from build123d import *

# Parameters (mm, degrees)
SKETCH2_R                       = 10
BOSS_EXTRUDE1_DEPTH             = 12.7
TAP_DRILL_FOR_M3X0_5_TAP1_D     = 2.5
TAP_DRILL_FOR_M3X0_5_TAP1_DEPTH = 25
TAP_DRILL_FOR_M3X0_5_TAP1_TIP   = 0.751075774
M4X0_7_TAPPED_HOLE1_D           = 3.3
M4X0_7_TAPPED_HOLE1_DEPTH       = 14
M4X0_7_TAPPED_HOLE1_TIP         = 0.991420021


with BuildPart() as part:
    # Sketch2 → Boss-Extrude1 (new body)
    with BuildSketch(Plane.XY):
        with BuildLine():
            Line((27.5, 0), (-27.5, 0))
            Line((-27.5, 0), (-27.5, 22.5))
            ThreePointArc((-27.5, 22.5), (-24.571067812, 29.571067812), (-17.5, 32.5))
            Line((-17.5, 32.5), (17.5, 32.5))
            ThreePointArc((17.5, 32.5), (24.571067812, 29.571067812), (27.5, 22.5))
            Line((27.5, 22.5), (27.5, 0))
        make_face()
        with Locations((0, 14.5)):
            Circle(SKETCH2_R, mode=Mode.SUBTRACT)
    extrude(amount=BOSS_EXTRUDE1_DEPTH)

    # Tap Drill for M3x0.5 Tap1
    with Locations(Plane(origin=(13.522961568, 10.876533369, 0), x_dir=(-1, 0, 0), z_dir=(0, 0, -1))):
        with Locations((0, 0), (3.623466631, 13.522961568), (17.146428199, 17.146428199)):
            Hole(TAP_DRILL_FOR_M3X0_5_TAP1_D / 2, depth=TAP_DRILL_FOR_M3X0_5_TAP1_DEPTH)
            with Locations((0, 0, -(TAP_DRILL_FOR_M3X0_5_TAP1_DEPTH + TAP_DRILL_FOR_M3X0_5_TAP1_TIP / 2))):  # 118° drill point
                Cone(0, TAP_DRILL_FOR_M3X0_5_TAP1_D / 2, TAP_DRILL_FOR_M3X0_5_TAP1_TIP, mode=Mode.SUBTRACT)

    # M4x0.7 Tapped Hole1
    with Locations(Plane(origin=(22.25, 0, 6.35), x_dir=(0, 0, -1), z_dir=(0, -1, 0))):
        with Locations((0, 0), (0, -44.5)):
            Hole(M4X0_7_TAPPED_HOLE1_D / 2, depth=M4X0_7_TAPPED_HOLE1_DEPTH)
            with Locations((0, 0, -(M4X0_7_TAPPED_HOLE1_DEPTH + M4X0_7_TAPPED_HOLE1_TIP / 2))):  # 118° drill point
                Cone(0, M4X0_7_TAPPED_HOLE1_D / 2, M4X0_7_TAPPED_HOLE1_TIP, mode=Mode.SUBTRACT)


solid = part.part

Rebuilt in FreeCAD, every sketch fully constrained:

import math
import FreeCAD as App
import Part
import Sketcher

V = App.Vector
Q = App.Units.Quantity

doc = App.newDocument("Part")
body = doc.addObject("PartDesign::Body", "Body")

# Sketch on XY plane
sketch1 = doc.addObject("Sketcher::SketchObject", "Sketch")
body.addObject(sketch1)
sketch1.AttachmentSupport = (doc.XY_Plane, [""])
sketch1.MapMode = "FlatFace"
sketch1.addGeometry(Part.LineSegment(V(-28, 0, 0), V(28, 0, 0)), False)
sketch1.addGeometry(Part.LineSegment(V(28, 0, 0), V(28, 22, 0)), False)
sketch1.addGeometry(Part.ArcOfCircle(Part.Circle(V(18, 22, 0), V(0, 0, 1), 10), math.radians(0), math.radians(90)), False)
sketch1.addGeometry(Part.LineSegment(V(18, 32, 0), V(-18, 32, 0)), False)
sketch1.addGeometry(Part.ArcOfCircle(Part.Circle(V(-18, 22, 0), V(0, 0, 1), 10), math.radians(90), math.radians(180)), False)
sketch1.addGeometry(Part.LineSegment(V(-28, 22, 0), V(-28, 0, 0)), False)
sketch1.addGeometry(Part.Circle(V(0, 14, 0), V(0, 0, 1), 10), False)
sketch1.addConstraint(Sketcher.Constraint("Coincident", 0, 2, 1, 1))
sketch1.addConstraint(Sketcher.Constraint("Tangent", 1, 2, 2, 1))
sketch1.addConstraint(Sketcher.Constraint("Tangent", 2, 2, 3, 1))
sketch1.addConstraint(Sketcher.Constraint("Tangent", 3, 2, 4, 1))
sketch1.addConstraint(Sketcher.Constraint("Tangent", 4, 2, 5, 1))
sketch1.addConstraint(Sketcher.Constraint("Coincident", 5, 2, 0, 1))
sketch1.addConstraint(Sketcher.Constraint("Horizontal", 0))
sketch1.addConstraint(Sketcher.Constraint("Vertical", 1))
sketch1.addConstraint(Sketcher.Constraint("Horizontal", 3))
sketch1.addConstraint(Sketcher.Constraint("Vertical", 5))
sketch1.addConstraint(Sketcher.Constraint("Equal", 2, 4))
sketch1.addConstraint(Sketcher.Constraint("Equal", 4, 6))
sketch1.addConstraint(Sketcher.Constraint("Symmetric", 0, 2, 5, 2, -1, 1))
sketch1.addConstraint(Sketcher.Constraint("PointOnObject", 6, 3, -2))
sketch1.addConstraint(Sketcher.Constraint("Diameter", 6, Q("20 mm")))
sketch1.addConstraint(Sketcher.Constraint("DistanceX", 0, 1, 0, 2, Q("55 mm")))
sketch1.addConstraint(Sketcher.Constraint("DistanceY", 1, 1, 1, 2, Q("22.5 mm")))
sketch1.addConstraint(Sketcher.Constraint("DistanceY", 6, 3, 2, 3, Q("8 mm")))
pad1 = doc.addObject("PartDesign::Pad", "Pad")
body.addObject(pad1)
pad1.Profile = sketch1
pad1.Length = 12.7

# Sketch on XY plane
sketch2 = doc.addObject("Sketcher::SketchObject", "Sketch001")
body.addObject(sketch2)
sketch2.AttachmentSupport = (doc.XY_Plane, [""])
sketch2.MapMode = "FlatFace"
sketch2.addGeometry(Part.Circle(V(13.5, 10.9, 0), V(0, 0, 1), 1.2), False)
sketch2.addGeometry(Part.Circle(V(9.9, 24.4, 0), V(0, 0, 1), 1.2), False)
sketch2.addGeometry(Part.Circle(V(-3.6, 28, 0), V(0, 0, 1), 1.2), False)
sketch2.addConstraint(Sketcher.Constraint("Equal", 0, 1))
sketch2.addConstraint(Sketcher.Constraint("Equal", 1, 2))
sketch2.addConstraint(Sketcher.Constraint("Diameter", 0, Q("2.5 mm")))
sketch2.addConstraint(Sketcher.Constraint("DistanceX", -1, 1, 0, 3, Q("13.522962 mm")))
sketch2.addConstraint(Sketcher.Constraint("DistanceY", -1, 1, 2, 3, Q("28.022962 mm")))
sketch2.addConstraint(Sketcher.Constraint("DistanceY", 0, 3, 1, 3, Q("13.522962 mm")))
sketch2.addConstraint(Sketcher.Constraint("DistanceX", 2, 3, 1, 3, Q("13.522962 mm")))
sketch2.addConstraint(Sketcher.Constraint("DistanceX", 2, 3, 0, 3, Q("17.146428 mm")))
sketch2.addConstraint(Sketcher.Constraint("DistanceY", 0, 3, 2, 3, Q("17.146428 mm")))
doc.recompute()
hole = doc.addObject("PartDesign::Hole", "Hole")
body.addObject(hole)
hole.Profile = sketch2
hole.ThreadType = "None"
hole.Diameter = 2.5
hole.DepthType = "Dimension"
hole.Depth = 25
hole.DrillPoint = "Angled"
hole.DrillPointAngle = 118
hole.Reversed = True

# Sketch on XZ plane
sketch3 = doc.addObject("Sketcher::SketchObject", "Sketch002")
body.addObject(sketch3)
sketch3.AttachmentSupport = (doc.XZ_Plane, [""])
sketch3.MapMode = "FlatFace"
sketch3.addGeometry(Part.Circle(V(22.2, 6.3, 0), V(0, 0, 1), 1.6), False)
sketch3.addGeometry(Part.Circle(V(-22.2, 6.3, 0), V(0, 0, 1), 1.6), False)
sketch3.addConstraint(Sketcher.Constraint("Equal", 0, 1))
sketch3.addConstraint(Sketcher.Constraint("Symmetric", 0, 3, 1, 3, -2))
sketch3.addConstraint(Sketcher.Constraint("Diameter", 0, Q("3.3 mm")))
sketch3.addConstraint(Sketcher.Constraint("DistanceX", 1, 3, 0, 3, Q("44.5 mm")))
sketch3.addConstraint(Sketcher.Constraint("DistanceY", -1, 1, 0, 3, Q("6.35 mm")))
doc.recompute()
hole2 = doc.addObject("PartDesign::Hole", "Hole001")
body.addObject(hole2)
hole2.Profile = sketch3
hole2.ThreadType = "None"
hole2.Diameter = 3.3
hole2.DepthType = "Dimension"
hole2.Depth = 14
hole2.DrillPoint = "Angled"
hole2.DrillPointAngle = 118

doc.recompute()
